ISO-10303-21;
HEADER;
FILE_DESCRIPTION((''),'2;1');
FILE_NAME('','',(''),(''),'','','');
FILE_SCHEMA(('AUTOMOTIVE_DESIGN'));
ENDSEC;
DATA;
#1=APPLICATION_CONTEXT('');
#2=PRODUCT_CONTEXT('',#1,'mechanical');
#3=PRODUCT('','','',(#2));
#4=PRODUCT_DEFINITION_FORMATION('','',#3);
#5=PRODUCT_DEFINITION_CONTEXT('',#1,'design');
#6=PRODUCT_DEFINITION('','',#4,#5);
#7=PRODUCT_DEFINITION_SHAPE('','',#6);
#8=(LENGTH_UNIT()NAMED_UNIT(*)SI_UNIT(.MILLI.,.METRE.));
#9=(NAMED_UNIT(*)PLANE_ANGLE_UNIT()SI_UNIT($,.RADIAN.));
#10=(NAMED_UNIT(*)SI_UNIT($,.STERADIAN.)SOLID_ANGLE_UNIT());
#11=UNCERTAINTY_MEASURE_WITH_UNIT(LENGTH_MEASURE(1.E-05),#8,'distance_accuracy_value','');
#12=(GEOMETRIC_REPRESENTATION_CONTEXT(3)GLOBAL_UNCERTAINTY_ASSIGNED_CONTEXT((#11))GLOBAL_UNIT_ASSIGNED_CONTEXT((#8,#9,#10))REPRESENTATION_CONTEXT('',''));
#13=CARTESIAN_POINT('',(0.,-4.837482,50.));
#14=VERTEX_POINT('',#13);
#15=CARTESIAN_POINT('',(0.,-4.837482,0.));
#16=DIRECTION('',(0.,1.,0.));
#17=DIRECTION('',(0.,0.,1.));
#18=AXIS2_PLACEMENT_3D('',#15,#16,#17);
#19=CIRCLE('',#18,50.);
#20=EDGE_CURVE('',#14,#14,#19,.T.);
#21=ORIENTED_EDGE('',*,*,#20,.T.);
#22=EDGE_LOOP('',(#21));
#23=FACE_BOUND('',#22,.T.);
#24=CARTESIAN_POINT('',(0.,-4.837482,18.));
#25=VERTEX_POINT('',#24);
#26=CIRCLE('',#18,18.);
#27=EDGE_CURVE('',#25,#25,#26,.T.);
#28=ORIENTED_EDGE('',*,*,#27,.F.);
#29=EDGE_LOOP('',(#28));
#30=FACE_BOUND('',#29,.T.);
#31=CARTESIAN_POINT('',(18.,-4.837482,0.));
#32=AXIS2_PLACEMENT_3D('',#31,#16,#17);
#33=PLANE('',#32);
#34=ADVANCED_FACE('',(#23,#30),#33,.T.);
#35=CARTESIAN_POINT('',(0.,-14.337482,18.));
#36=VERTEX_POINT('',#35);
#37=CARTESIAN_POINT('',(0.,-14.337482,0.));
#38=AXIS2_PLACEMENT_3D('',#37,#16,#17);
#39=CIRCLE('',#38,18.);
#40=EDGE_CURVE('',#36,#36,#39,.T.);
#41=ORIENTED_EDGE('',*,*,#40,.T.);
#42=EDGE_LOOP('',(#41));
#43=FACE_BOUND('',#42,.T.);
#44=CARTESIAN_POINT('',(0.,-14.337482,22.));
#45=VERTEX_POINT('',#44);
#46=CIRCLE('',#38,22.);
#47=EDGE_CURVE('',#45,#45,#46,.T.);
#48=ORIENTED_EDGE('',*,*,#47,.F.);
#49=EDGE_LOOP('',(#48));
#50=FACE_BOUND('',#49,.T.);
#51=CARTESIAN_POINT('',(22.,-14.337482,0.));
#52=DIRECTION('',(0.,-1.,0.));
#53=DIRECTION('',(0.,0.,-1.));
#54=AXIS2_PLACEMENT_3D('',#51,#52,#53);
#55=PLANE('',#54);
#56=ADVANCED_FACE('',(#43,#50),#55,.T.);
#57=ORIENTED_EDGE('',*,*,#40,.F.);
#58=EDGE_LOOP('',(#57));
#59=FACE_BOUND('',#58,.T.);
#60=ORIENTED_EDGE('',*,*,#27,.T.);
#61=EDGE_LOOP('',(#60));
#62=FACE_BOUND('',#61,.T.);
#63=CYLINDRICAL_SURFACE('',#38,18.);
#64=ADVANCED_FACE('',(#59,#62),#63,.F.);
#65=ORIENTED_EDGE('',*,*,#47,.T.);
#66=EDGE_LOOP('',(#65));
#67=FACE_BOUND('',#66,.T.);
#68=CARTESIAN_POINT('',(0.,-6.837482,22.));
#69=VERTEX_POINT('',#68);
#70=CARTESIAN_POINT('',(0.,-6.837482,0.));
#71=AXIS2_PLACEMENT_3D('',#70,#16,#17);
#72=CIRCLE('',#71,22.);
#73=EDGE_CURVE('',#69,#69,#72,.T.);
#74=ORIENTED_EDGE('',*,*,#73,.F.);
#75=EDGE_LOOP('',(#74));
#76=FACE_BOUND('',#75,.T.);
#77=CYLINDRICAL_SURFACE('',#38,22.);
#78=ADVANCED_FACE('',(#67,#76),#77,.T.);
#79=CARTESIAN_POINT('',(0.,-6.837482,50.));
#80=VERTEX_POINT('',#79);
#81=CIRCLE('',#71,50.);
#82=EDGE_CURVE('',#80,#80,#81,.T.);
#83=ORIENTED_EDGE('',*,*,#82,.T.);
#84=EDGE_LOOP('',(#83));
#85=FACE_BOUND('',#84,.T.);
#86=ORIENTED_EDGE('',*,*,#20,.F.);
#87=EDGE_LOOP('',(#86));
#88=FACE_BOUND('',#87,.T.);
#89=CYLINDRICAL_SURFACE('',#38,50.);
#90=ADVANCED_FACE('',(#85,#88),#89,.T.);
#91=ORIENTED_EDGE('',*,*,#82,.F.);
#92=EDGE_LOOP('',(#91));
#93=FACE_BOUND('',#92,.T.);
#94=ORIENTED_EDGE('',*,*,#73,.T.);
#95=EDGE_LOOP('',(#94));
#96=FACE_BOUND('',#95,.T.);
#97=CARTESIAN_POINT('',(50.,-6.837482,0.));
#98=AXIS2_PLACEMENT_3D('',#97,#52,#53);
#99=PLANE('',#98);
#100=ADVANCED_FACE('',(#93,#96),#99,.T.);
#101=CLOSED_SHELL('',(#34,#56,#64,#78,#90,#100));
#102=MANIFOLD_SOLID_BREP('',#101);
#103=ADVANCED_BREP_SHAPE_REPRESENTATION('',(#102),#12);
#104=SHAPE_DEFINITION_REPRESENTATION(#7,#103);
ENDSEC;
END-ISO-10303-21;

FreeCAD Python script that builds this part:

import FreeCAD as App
import Part
import Sketcher


def add_polygon(sketch, points):
    """Adds a closed chain of lines whose ends are joined by coincident constraints."""
    first, n = sketch.GeometryCount, len(points)
    for a, b in zip(points, points[1:] + points[:1]):
        sketch.addGeometry(Part.LineSegment(App.Vector(*a, 0), App.Vector(*b, 0)), False)
    for i in range(n):
        sketch.addConstraint(Sketcher.Constraint("Coincident", first + i, 2, first + (i + 1) % n, 1))

doc = App.newDocument("Part")
body = doc.addObject("PartDesign::Body", "Body")

sketch1 = body.newObject("Sketcher::SketchObject", "Sketch")
sketch1.AttachmentSupport = (doc.getObject("XY_Plane"), [""])
sketch1.MapMode = "FlatFace"
add_polygon(sketch1, [(22, -6.837482), (22, -14.337482), (18, -14.337482), (18, -4.837482), (50, -4.837482), (50, -6.837482)])
sketch1.addConstraint([
    Sketcher.Constraint("Vertical", 0),
    Sketcher.Constraint("Horizontal", 1),
    Sketcher.Constraint("Vertical", 2),
    Sketcher.Constraint("Horizontal", 3),
    Sketcher.Constraint("Vertical", 4),
    Sketcher.Constraint("Horizontal", 5),
    Sketcher.Constraint("DistanceX", 1, 2, 1, 1, 4.0),
    Sketcher.Constraint("DistanceX", 3, 1, 3, 2, 32.0),
    Sketcher.Constraint("DistanceY", 4, 2, 4, 1, 2.0),
    Sketcher.Constraint("DistanceY", 0, 2, 0, 1, 7.5),
    Sketcher.Constraint("DistanceX", -1, 1, 0, 2, 22.0),
    Sketcher.Constraint("DistanceY", 0, 2, -1, 1, 14.337482),
])
revolution = body.newObject("PartDesign::Revolution", "Revolution")
revolution.Profile = sketch1
revolution.ReferenceAxis = (sketch1, ["V_Axis"])
revolution.Angle = 360

doc.recompute()
